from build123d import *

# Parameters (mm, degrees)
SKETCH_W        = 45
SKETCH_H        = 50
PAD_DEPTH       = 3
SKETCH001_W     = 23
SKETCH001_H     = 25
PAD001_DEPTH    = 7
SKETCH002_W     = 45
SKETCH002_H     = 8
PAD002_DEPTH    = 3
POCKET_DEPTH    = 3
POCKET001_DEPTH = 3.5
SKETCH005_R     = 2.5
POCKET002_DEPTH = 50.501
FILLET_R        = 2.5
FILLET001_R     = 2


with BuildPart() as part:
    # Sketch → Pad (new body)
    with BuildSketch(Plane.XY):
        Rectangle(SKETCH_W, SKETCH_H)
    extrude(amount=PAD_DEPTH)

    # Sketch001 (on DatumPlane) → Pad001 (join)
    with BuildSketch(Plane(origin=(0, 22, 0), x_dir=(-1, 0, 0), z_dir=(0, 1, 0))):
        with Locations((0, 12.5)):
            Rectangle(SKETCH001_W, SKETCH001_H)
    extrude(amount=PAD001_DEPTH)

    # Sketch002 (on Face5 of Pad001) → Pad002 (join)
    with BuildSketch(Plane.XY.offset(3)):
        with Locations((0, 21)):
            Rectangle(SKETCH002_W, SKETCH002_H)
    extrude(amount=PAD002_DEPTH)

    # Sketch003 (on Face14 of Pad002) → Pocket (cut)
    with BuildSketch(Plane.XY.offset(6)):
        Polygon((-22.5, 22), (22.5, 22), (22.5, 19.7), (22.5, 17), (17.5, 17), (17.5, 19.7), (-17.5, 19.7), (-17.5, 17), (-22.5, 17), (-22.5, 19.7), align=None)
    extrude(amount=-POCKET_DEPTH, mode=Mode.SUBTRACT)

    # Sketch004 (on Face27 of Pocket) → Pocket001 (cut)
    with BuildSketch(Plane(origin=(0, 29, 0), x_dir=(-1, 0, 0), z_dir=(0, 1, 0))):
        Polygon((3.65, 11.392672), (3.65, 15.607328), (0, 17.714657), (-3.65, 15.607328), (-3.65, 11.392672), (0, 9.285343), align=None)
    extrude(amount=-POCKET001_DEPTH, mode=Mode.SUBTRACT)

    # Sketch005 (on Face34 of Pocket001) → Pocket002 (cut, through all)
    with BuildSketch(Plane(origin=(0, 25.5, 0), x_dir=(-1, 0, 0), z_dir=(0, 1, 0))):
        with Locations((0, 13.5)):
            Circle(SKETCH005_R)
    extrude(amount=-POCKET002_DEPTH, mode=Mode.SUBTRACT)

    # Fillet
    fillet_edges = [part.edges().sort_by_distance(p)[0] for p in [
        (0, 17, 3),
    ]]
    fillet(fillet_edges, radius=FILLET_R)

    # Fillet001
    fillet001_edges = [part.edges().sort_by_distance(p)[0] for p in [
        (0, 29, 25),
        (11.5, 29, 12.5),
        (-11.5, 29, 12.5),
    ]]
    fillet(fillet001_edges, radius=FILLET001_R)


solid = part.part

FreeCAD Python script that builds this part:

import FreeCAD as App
import Part
import Sketcher

V = App.Vector
Q = App.Units.Quantity


def edges_at(feature, points):
    """Names of the edges that pass closest to the given points."""
    edges = feature.Shape.Edges
    near = lambda p: min(range(len(edges)), key=lambda i: edges[i].distToShape(Part.Vertex(*p))[0])
    return sorted({f"Edge{near(p) + 1}" for p in points})


def add_polygon(sketch, points):
    """Adds a closed chain of lines whose ends are joined by coincident constraints."""
    first, n = sketch.GeometryCount, len(points)
    for a, b in zip(points, points[1:] + points[:1]):
        sketch.addGeometry(Part.LineSegment(App.Vector(*a, 0), App.Vector(*b, 0)), False)
    for i in range(n):
        sketch.addConstraint(Sketcher.Constraint("Coincident", first + i, 2, first + (i + 1) % n, 1))

doc = App.newDocument("Part")
body = doc.addObject("PartDesign::Body", "Body")

sketch1 = body.newObject("Sketcher::SketchObject", "Sketch")
sketch1.AttachmentSupport = (doc.getObject("XY_Plane"), [""])
sketch1.MapMode = "FlatFace"
add_polygon(sketch1, [(-22, 25), (-22, -25), (22, -25), (22, 25)])
sketch1.addConstraint([
    Sketcher.Constraint("Vertical", 0),
    Sketcher.Constraint("Horizontal", 1),
    Sketcher.Constraint("Vertical", 2),
    Sketcher.Constraint("Horizontal", 3),
    Sketcher.Constraint("Symmetric", 0, 2, 2, 2, -1, 1),
    Sketcher.Constraint("DistanceX", 1, 1, 1, 2, Q("45 mm")),
    Sketcher.Constraint("DistanceY", 0, 2, 0, 1, Q("50 mm")),
])
pad1 = body.newObject("PartDesign::Pad", "Pad")
pad1.Profile = sketch1
pad1.Length = 3

sketch2 = body.newObject("Sketcher::SketchObject", "Sketch001")
sketch2.AttachmentSupport = (doc.getObject("XZ_Plane"), [""])
sketch2.MapMode = "FlatFace"
sketch2.AttachmentOffset = App.Placement(V(0, 0, -22), App.Rotation())
add_polygon(sketch2, [(12, 25), (12, 0), (-12, 0), (-12, 25)])
sketch2.addConstraint([
    Sketcher.Constraint("Vertical", 0),
    Sketcher.Constraint("Horizontal", 1),
    Sketcher.Constraint("Vertical", 2),
    Sketcher.Constraint("Horizontal", 3),
    Sketcher.Constraint("Symmetric", 0, 2, 1, 2, -1, 1),
    Sketcher.Constraint("DistanceX", 1, 2, 1, 1, Q("23 mm")),
    Sketcher.Constraint("DistanceY", 0, 2, 0, 1, Q("25 mm")),
])
pad2 = body.newObject("PartDesign::Pad", "Pad001")
pad2.Profile = sketch2
pad2.Length = 7
pad2.Reversed = True

sketch3 = body.newObject("Sketcher::SketchObject", "Sketch002")
sketch3.AttachmentSupport = (doc.getObject("XY_Plane"), [""])
sketch3.MapMode = "FlatFace"
sketch3.AttachmentOffset = App.Placement(V(0, 0, 3), App.Rotation())
add_polygon(sketch3, [(-22, 25), (-22, 17), (22, 17), (22, 25)])
sketch3.addConstraint([
    Sketcher.Constraint("Vertical", 0),
    Sketcher.Constraint("Horizontal", 1),
    Sketcher.Constraint("Vertical", 2),
    Sketcher.Constraint("Horizontal", 3),
    Sketcher.Constraint("DistanceX", 1, 1, 1, 2, Q("45 mm")),
    Sketcher.Constraint("DistanceY", 0, 2, 0, 1, Q("8 mm")),
    Sketcher.Constraint("DistanceY", -1, 1, 0, 2, Q("17 mm")),
    Sketcher.Constraint("DistanceX", 0, 2, -1, 1, Q("22.5 mm")),
])
pad3 = body.newObject("PartDesign::Pad", "Pad002")
pad3.Profile = sketch3
pad3.Length = 3

sketch4 = body.newObject("Sketcher::SketchObject", "Sketch003")
sketch4.AttachmentSupport = (doc.getObject("XY_Plane"), [""])
sketch4.MapMode = "FlatFace"
sketch4.AttachmentOffset = App.Placement(V(0, 0, 6), App.Rotation())
add_polygon(sketch4, [(22.5, 22), (-22.5, 22), (-22.5, 17), (-17.5, 17), (-17.5, 19.7), (17.5, 19.7), (17.5, 17), (22.5, 17)])
sketch4.addConstraint([
    Sketcher.Constraint("Horizontal", 0),
    Sketcher.Constraint("Vertical", 1),
    Sketcher.Constraint("Horizontal", 2),
    Sketcher.Constraint("Vertical", 3),
    Sketcher.Constraint("Horizontal", 4),
    Sketcher.Constraint("Vertical", 5),
    Sketcher.Constraint("Horizontal", 6),
    Sketcher.Constraint("Vertical", 7),
    Sketcher.Constraint("Symmetric", 2, 2, 5, 2, -2),
    Sketcher.Constraint("Equal", 2, 6),
    Sketcher.Constraint("Equal", 6, 1),
    Sketcher.Constraint("DistanceX", 0, 2, 0, 1, Q("45 mm")),
    Sketcher.Constraint("DistanceX", 2, 1, 2, 2, Q("5 mm")),
    Sketcher.Constraint("DistanceY", 3, 1, 3, 2, Q("2.7 mm")),
    Sketcher.Constraint("DistanceY", -1, 1, 0, 2, Q("22 mm")),
])
pocket1 = body.newObject("PartDesign::Pocket", "Pocket")
pocket1.Profile = sketch4
pocket1.Length = 3

sketch5 = body.newObject("Sketcher::SketchObject", "Sketch004")
sketch5.AttachmentSupport = (doc.getObject("XZ_Plane"), [""])
sketch5.MapMode = "FlatFace"
sketch5.AttachmentOffset = App.Placement(V(0, 0, -29), App.Rotation())
add_polygon(sketch5, [(-3.6, 11.4), (-3.6, 15.6), (0, 17.7), (3.6, 15.6), (3.6, 11.4), (0, 9.3)])
sketch5.addConstraint([
    Sketcher.Constraint("Vertical", 0),
    Sketcher.Constraint("Vertical", 3),
    Sketcher.Constraint("Symmetric", 0, 2, 2, 2, -2),
    Sketcher.Constraint("PointOnObject", 1, 2, -2),
    Sketcher.Constraint("PointOnObject", 4, 2, -2),
    Sketcher.Constraint("Parallel", 1, 4),
    Sketcher.Constraint("Parallel", 2, 5),
    Sketcher.Constraint("Angle", 1, Q("30.000006 deg")),
    Sketcher.Constraint("DistanceX", 0, 2, 2, 2, Q("7.3 mm")),
    Sketcher.Constraint("DistanceY", 0, 1, 0, 2, Q("4.214656 mm")),
    Sketcher.Constraint("DistanceY", -1, 1, 0, 2, Q("15.607328 mm")),
])
pocket2 = body.newObject("PartDesign::Pocket", "Pocket001")
pocket2.Profile = sketch5
pocket2.Length = 3.5
pocket2.Reversed = True

sketch6 = body.newObject("Sketcher::SketchObject", "Sketch005")
sketch6.AttachmentSupport = (doc.getObject("XZ_Plane"), [""])
sketch6.MapMode = "FlatFace"
sketch6.AttachmentOffset = App.Placement(V(0, 0, -25.5), App.Rotation())
sketch6.addGeometry(Part.Circle(V(0, 13.5, 0), V(0, 0, 1), 2.5), False)
sketch6.addConstraint([
    Sketcher.Constraint("PointOnObject", 0, 3, -2),
    Sketcher.Constraint("Diameter", 0, Q("5 mm")),
    Sketcher.Constraint("DistanceY", -1, 1, 0, 3, Q("13.5 mm")),
])
pocket3 = body.newObject("PartDesign::Pocket", "Pocket002")
pocket3.Profile = sketch6
pocket3.Type = "ThroughAll"
pocket3.Reversed = True
doc.recompute()

fillet = body.newObject("PartDesign::Fillet", "Fillet")
fillet.Base = (pocket3, edges_at(pocket3, [(0, 17, 3)]))
fillet.Radius = 2.5
doc.recompute()

fillet2 = body.newObject("PartDesign::Fillet", "Fillet001")
fillet2.Base = (fillet, edges_at(fillet, [(0, 29, 25), (11.5, 29, 12.5), (-11.5, 29, 12.5)]))
fillet2.Radius = 2

doc.recompute()
